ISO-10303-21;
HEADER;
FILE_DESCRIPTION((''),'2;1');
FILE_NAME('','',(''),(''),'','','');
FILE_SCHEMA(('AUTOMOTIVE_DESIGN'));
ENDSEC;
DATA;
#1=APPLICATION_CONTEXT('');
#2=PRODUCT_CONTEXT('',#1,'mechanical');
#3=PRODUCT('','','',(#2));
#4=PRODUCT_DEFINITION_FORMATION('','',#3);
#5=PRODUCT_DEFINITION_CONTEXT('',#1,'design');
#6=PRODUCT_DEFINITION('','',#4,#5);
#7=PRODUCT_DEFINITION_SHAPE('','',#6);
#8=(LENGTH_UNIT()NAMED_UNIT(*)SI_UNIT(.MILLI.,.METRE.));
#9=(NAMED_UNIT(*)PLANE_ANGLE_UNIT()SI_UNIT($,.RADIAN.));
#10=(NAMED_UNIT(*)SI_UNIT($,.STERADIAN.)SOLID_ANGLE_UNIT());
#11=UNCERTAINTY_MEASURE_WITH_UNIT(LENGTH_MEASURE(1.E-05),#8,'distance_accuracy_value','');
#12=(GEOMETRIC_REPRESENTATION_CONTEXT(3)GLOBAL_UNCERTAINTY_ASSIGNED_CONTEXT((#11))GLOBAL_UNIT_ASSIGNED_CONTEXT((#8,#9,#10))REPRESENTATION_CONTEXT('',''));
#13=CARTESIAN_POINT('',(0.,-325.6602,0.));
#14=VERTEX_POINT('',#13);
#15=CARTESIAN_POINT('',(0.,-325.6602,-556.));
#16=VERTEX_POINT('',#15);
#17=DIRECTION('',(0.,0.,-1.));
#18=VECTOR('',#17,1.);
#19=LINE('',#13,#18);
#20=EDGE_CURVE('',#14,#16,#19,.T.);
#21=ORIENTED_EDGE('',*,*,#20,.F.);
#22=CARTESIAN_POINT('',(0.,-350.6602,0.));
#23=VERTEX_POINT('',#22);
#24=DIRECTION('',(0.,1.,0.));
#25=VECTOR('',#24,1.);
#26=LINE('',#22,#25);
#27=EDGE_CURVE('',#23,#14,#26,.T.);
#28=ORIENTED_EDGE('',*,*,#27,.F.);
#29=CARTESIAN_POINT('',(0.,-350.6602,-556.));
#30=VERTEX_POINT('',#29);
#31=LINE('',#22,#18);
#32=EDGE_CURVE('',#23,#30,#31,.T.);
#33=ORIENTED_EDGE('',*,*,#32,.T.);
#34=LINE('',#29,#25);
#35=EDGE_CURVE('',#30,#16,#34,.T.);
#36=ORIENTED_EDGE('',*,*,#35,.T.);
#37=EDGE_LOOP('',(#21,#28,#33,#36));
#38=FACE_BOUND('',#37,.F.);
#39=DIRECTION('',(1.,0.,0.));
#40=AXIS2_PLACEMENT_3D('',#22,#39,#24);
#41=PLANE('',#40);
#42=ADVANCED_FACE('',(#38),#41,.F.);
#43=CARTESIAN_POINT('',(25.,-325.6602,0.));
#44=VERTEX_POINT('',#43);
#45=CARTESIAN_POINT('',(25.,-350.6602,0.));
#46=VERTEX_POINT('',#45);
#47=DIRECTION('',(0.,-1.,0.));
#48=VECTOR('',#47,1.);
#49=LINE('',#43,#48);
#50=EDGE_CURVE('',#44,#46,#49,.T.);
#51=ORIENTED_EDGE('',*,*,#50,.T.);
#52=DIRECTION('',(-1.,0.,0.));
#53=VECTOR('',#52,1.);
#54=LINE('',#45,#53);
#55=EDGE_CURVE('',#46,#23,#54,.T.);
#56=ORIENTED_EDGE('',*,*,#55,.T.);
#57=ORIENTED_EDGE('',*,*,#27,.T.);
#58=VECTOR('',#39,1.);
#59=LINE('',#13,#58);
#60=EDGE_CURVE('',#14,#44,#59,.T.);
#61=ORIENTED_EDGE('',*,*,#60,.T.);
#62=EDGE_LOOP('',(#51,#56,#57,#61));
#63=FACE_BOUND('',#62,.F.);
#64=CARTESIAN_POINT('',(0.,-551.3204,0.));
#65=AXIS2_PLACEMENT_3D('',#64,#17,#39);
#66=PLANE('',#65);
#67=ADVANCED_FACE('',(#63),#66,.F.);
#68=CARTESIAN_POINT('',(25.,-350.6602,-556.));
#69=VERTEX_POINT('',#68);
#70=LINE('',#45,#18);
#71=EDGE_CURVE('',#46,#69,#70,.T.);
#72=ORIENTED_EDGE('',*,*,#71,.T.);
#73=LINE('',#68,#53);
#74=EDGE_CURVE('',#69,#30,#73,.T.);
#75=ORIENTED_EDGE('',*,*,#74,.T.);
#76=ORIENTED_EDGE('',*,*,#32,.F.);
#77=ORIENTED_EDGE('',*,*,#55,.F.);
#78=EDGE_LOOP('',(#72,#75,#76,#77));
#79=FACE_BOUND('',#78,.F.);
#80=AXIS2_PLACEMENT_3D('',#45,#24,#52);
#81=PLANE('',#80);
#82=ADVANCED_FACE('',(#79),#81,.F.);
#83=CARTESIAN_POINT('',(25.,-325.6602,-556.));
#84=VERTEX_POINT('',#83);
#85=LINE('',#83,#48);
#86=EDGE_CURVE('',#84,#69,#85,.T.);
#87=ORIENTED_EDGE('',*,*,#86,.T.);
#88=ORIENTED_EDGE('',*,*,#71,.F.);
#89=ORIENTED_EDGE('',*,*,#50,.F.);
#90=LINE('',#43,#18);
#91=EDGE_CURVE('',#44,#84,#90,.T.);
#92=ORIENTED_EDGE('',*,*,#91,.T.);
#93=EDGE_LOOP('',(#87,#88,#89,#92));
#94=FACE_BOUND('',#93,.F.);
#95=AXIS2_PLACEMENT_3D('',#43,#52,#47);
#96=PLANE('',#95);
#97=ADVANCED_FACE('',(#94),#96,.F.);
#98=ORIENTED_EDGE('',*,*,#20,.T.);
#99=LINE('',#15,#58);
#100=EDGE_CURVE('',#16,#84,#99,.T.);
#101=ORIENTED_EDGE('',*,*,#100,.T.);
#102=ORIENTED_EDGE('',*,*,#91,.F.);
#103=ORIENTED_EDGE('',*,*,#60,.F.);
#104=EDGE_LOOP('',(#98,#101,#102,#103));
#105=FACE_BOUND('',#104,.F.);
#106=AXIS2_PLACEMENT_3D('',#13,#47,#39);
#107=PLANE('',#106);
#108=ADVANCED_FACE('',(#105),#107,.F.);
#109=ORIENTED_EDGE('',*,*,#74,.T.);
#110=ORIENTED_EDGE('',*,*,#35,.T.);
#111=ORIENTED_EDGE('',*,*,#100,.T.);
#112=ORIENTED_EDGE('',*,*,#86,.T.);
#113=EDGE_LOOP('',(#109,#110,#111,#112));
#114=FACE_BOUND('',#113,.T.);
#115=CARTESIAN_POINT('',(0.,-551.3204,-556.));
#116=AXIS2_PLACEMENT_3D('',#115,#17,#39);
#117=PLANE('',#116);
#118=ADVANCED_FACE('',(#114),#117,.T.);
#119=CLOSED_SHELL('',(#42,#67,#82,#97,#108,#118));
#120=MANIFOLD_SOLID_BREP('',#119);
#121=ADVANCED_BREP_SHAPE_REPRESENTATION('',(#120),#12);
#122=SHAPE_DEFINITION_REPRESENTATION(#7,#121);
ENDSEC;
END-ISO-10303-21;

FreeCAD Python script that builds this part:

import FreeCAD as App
import Part
import Sketcher

V = App.Vector


def add_polygon(sketch, points):
    """Adds a closed chain of lines whose ends are joined by coincident constraints."""
    first, n = sketch.GeometryCount, len(points)
    for a, b in zip(points, points[1:] + points[:1]):
        sketch.addGeometry(Part.LineSegment(App.Vector(*a, 0), App.Vector(*b, 0)), False)
    for i in range(n):
        sketch.addConstraint(Sketcher.Constraint("Coincident", first + i, 2, first + (i + 1) % n, 1))

doc = App.newDocument("Part")
body = doc.addObject("PartDesign::Body", "Body")

sketch1 = body.newObject("Sketcher::SketchObject", "Sketch")
sketch1.AttachmentSupport = (doc.getObject("XY_Plane"), [""])
sketch1.MapMode = "FlatFace"
add_polygon(sketch1, [(0, -351), (0, -326), (25, -326), (25, -351)])
sketch1.addConstraint(Sketcher.Constraint("Vertical", 0))
sketch1.addConstraint(Sketcher.Constraint("Horizontal", 1))
sketch1.addConstraint(Sketcher.Constraint("Vertical", 2))
sketch1.addConstraint(Sketcher.Constraint("Horizontal", 3))
sketch1.addConstraint(Sketcher.Constraint("PointOnObject", 0, 2, -2))
sketch1.addConstraint(Sketcher.Constraint("Equal", 3, 0))
sketch1.addConstraint(Sketcher.Constraint("DistanceX", 1, 1, 1, 2, 25.0))
sketch1.addConstraint(Sketcher.Constraint("DistanceY", 0, 2, -1, 1, 325.6602))
pad1 = body.newObject("PartDesign::Pad", "Pad")
pad1.Profile = sketch1
pad1.Length = 556
pad1.Reversed = True

doc.recompute()
